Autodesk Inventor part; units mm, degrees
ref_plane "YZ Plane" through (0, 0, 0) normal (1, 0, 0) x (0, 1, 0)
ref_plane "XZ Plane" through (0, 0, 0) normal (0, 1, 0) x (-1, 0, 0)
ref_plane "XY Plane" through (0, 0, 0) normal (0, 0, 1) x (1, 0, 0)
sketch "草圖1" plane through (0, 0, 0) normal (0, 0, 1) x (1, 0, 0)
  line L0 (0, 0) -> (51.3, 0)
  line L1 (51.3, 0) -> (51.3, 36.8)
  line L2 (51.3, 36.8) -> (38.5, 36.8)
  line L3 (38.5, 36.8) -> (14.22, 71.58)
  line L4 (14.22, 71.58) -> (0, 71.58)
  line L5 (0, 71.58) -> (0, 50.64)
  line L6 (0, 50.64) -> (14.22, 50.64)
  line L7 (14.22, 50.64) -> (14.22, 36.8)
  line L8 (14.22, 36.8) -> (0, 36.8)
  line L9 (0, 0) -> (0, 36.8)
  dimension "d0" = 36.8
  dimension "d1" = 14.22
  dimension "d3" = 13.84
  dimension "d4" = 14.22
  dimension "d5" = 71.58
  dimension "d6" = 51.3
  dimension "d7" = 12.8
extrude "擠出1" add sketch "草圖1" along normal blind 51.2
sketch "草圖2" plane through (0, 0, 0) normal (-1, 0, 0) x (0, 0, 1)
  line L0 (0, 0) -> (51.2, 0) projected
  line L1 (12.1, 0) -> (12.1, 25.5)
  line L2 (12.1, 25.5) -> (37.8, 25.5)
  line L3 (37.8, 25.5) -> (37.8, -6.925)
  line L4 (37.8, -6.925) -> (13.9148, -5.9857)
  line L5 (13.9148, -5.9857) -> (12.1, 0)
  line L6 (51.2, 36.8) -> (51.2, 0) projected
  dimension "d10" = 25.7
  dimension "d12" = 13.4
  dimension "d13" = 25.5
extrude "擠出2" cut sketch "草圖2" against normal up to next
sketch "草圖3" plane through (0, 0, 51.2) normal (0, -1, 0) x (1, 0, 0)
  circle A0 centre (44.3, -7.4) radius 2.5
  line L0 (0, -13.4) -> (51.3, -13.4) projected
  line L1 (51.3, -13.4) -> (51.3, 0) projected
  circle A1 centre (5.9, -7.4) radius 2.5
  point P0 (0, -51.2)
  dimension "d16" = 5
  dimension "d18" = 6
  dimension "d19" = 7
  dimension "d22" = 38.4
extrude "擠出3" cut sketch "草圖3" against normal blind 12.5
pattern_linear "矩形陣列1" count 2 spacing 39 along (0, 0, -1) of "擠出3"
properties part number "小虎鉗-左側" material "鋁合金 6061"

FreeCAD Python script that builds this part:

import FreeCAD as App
import Part
import Sketcher
from FreeCAD import Vector


def add_polygon(sketch, points):
    """Adds a closed chain of lines whose ends are joined by coincident constraints."""
    first, n = sketch.GeometryCount, len(points)
    for a, b in zip(points, points[1:] + points[:1]):
        sketch.addGeometry(Part.LineSegment(App.Vector(*a, 0), App.Vector(*b, 0)), False)
    for i in range(n):
        sketch.addConstraint(Sketcher.Constraint("Coincident", first + i, 2, first + (i + 1) % n, 1))

doc = App.newDocument("Part")
params = doc.addObject("Spreadsheet::Sheet", "Params")
for row, (alias, value) in enumerate([
    ("sketch1_width", "51.3 mm"),
    ("sketch1_width2", "12.8 mm"),
    ("sketch1_height", "36.8 mm"),
    ("sketch1_width3", "14.22 mm"),
    ("sketch1_height2", "13.84 mm"),
    ("pad1_length", "51.2 mm"),
    ("sketch2_width", "25.5 mm"),
    ("sketch2_height", "25.7 mm"),
    ("sketch3_diameter", "5 mm"),
    ("pocket2_length", "12.5 mm"),
    ("linearpattern_pitch", "39 mm"),
], start=1):
    params.set(f"A{row}", alias)
    params.set(f"B{row}", "=" + value)
    params.setAlias(f"B{row}", alias)

body = doc.addObject("PartDesign::Body", "Body")

sketch1 = body.newObject("Sketcher::SketchObject", "Sketch")
sketch1.AttachmentSupport = (doc.getObject("XY_Plane"), [""])
sketch1.MapMode = "FlatFace"
add_polygon(sketch1, [(0, 37), (0, 0), (51, 0), (51, 37), (38, 37), (14, 72), (0, 72), (0, 51), (14, 51), (14, 37)])
sketch1.addConstraint(Sketcher.Constraint("Vertical", 0))
sketch1.addConstraint(Sketcher.Constraint("Horizontal", 1))
sketch1.addConstraint(Sketcher.Constraint("Vertical", 2))
sketch1.addConstraint(Sketcher.Constraint("Horizontal", 3))
sketch1.addConstraint(Sketcher.Constraint("Horizontal", 5))
sketch1.addConstraint(Sketcher.Constraint("Vertical", 6))
sketch1.addConstraint(Sketcher.Constraint("Horizontal", 7))
sketch1.addConstraint(Sketcher.Constraint("Vertical", 8))
sketch1.addConstraint(Sketcher.Constraint("Horizontal", 9))
sketch1.addConstraint(Sketcher.Constraint("Coincident", 0, 2, -1, 1))
sketch1.addConstraint(Sketcher.Constraint("PointOnObject", 5, 2, -2))
sketch1.addConstraint(Sketcher.Constraint("Horizontal", 3, 2, 8, 2))
sketch1.addConstraint(Sketcher.Constraint("Vertical", 4, 2, 7, 2))
sketch1.addConstraint(Sketcher.Constraint("DistanceX", 1, 1, 1, 2, 51.3))
sketch1.addConstraint(Sketcher.Constraint("DistanceX", 3, 2, 3, 1, 12.8))
sketch1.addConstraint(Sketcher.Constraint("DistanceY", 0, 2, 0, 1, 36.8))
sketch1.addConstraint(Sketcher.Constraint("DistanceX", 5, 2, 5, 1, 14.22))
sketch1.addConstraint(Sketcher.Constraint("DistanceY", 8, 2, 8, 1, 13.84))
sketch1.addConstraint(Sketcher.Constraint("DistanceY", -1, 1, 4, 2, 71.58))
sketch1.setExpression("Constraints[23]", "Params.sketch1_width")
sketch1.setExpression("Constraints[24]", "Params.sketch1_width2")
sketch1.setExpression("Constraints[25]", "Params.sketch1_height")
sketch1.setExpression("Constraints[26]", "Params.sketch1_width3")
sketch1.setExpression("Constraints[27]", "Params.sketch1_height2")
pad1 = body.newObject("PartDesign::Pad", "Pad")
pad1.Profile = sketch1
pad1.setExpression("Length", "Params.pad1_length")

sketch2 = body.newObject("Sketcher::SketchObject", "Sketch001")
sketch2.AttachmentSupport = (doc.getObject("YZ_Plane"), [""])
sketch2.MapMode = "FlatFace"
add_polygon(sketch2, [(26, 12), (0, 12), (-6, 14), (-7, 38), (26, 38)])
sketch2.addConstraint(Sketcher.Constraint("Horizontal", 0))
sketch2.addConstraint(Sketcher.Constraint("Horizontal", 3))
sketch2.addConstraint(Sketcher.Constraint("Vertical", 4))
sketch2.addConstraint(Sketcher.Constraint("PointOnObject", 0, 2, -2))
sketch2.addConstraint(Sketcher.Constraint("DistanceX", 0, 2, 0, 1, 25.5))
sketch2.addConstraint(Sketcher.Constraint("DistanceY", 4, 2, 4, 1, 25.7))
sketch2.addConstraint(Sketcher.Constraint("DistanceY", -1, 1, 0, 2, 12.1))
sketch2.addConstraint(Sketcher.Constraint("DistanceX", 3, 1, 3, 2, 32.425))
sketch2.addConstraint(Sketcher.Constraint("Distance", 1, 6.2548))
sketch2.addConstraint(Sketcher.Constraint("Distance", 2, 23.9037))
sketch2.setExpression("Constraints[9]", "Params.sketch2_width")
sketch2.setExpression("Constraints[10]", "Params.sketch2_height")
pocket1 = body.newObject("PartDesign::Pocket", "Pocket")
pocket1.Profile = sketch2
pocket1.Type = "UpToFirst"
pocket1.Reversed = True

sketch3 = body.newObject("Sketcher::SketchObject", "Sketch002")
sketch3.AttachmentSupport = (doc.getObject("XZ_Plane"), [""])
sketch3.MapMode = "FlatFace"
sketch3.addGeometry(Part.Circle(Vector(44.3, 43.8, 0), Vector(0, 0, 1), 2.5), False)
sketch3.addGeometry(Part.Circle(Vector(5.9, 43.8, 0), Vector(0, 0, 1), 2.5), False)
sketch3.addConstraint(Sketcher.Constraint("Equal", 0, 1))
sketch3.addConstraint(Sketcher.Constraint("Horizontal", 0, 3, 1, 3))
sketch3.addConstraint(Sketcher.Constraint("Diameter", 0, 5.0))
sketch3.addConstraint(Sketcher.Constraint("DistanceX", 1, 3, 0, 3, 38.4))
sketch3.addConstraint(Sketcher.Constraint("DistanceX", -1, 1, 0, 3, 44.3))
sketch3.addConstraint(Sketcher.Constraint("DistanceY", -1, 1, 0, 3, 43.8))
sketch3.setExpression("Constraints[2]", "Params.sketch3_diameter")
pocket2 = body.newObject("PartDesign::Pocket", "Pocket001")
pocket2.Profile = sketch3
pocket2.setExpression("Length", "Params.pocket2_length")
doc.recompute()

linearpattern = body.newObject("PartDesign::LinearPattern", "LinearPattern")
linearpattern.Originals = [pocket2]
linearpattern.Direction = (doc.getObject("Z_Axis"), [""])
linearpattern.Mode = "offset"
linearpattern.setExpression("Offset", "Params.linearpattern_pitch")
linearpattern.Occurrences = 2
linearpattern.Reversed = True
body.Tip = linearpattern

doc.recompute()
